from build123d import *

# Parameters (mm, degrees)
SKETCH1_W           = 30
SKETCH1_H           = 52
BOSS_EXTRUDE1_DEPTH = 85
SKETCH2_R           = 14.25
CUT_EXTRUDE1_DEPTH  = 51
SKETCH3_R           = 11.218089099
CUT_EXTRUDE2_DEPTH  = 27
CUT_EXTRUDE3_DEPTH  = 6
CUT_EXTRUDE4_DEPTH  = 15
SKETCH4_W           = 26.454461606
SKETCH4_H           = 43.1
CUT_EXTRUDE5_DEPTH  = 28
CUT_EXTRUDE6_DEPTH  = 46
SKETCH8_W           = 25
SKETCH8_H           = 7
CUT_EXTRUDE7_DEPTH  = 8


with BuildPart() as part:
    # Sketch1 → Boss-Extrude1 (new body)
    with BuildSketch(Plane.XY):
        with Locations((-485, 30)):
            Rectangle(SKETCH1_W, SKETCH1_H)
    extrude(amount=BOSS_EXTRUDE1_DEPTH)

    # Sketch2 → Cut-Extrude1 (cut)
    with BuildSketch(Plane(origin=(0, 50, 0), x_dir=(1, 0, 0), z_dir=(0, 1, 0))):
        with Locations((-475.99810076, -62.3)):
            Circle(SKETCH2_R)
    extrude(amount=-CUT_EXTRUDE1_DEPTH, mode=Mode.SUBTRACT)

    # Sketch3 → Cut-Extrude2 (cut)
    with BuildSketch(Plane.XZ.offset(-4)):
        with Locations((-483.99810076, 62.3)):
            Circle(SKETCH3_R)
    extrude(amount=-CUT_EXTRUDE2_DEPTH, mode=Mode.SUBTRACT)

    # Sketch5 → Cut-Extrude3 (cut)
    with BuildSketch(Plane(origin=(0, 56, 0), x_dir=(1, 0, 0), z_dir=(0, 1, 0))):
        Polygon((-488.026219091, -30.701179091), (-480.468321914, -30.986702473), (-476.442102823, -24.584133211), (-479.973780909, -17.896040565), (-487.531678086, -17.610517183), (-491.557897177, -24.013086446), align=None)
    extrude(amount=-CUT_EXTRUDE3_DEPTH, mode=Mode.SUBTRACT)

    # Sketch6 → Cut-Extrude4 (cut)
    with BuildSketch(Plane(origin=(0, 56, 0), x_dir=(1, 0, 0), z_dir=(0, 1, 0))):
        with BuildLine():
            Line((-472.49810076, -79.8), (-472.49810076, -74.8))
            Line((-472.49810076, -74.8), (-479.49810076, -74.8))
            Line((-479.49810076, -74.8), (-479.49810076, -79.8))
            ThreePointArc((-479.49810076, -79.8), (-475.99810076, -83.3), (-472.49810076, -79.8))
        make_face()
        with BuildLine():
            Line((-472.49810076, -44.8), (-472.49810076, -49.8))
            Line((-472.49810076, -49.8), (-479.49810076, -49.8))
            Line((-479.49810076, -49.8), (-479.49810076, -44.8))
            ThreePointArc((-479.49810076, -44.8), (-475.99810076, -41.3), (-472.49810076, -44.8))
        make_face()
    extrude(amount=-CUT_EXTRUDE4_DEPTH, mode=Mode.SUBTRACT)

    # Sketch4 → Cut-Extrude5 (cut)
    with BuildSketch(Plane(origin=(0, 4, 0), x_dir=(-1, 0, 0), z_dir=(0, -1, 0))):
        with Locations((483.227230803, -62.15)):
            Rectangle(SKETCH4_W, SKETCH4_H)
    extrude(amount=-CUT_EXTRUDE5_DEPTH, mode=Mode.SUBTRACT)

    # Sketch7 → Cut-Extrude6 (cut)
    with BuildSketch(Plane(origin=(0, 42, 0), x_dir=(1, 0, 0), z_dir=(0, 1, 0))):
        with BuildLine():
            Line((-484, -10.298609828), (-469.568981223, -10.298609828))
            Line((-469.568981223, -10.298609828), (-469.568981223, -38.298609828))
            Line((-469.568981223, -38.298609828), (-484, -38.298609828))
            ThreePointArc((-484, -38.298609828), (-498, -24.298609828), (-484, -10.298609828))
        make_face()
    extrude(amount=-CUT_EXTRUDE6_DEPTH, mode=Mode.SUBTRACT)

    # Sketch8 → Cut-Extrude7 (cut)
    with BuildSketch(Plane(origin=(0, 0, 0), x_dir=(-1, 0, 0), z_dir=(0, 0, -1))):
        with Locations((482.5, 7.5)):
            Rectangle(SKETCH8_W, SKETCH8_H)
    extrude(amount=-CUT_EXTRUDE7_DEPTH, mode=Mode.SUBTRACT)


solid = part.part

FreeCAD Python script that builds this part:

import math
import FreeCAD as App
import Part
import Sketcher
Q = App.Units.Quantity

doc = App.newDocument("Part")
body = doc.addObject("PartDesign::Body", "Body")

# Sketch on XY plane
sketch1 = doc.addObject("Sketcher::SketchObject", "Sketch")
body.addObject(sketch1)
sketch1.AttachmentSupport = (doc.XY_Plane, [""])
sketch1.MapMode = "FlatFace"
sketch1.addGeometry([
    Part.LineSegment(App.Vector(-500, 56, 0), App.Vector(-500, 4, 0)),
    Part.LineSegment(App.Vector(-500, 4, 0), App.Vector(-470, 4, 0)),
    Part.LineSegment(App.Vector(-470, 4, 0), App.Vector(-470, 56, 0)),
    Part.LineSegment(App.Vector(-470, 56, 0), App.Vector(-500, 56, 0)),
], False)
sketch1.addConstraint([
    Sketcher.Constraint("Coincident", 0, 2, 1, 1),
    Sketcher.Constraint("Coincident", 1, 2, 2, 1),
    Sketcher.Constraint("Coincident", 2, 2, 3, 1),
    Sketcher.Constraint("Coincident", 3, 2, 0, 1),
    Sketcher.Constraint("Vertical", 0),
    Sketcher.Constraint("Horizontal", 1),
    Sketcher.Constraint("Vertical", 2),
    Sketcher.Constraint("Horizontal", 3),
    Sketcher.Constraint("DistanceX", 1, 1, 1, 2, Q("30 mm")),
    Sketcher.Constraint("DistanceY", 0, 2, 0, 1, Q("52 mm")),
    Sketcher.Constraint("DistanceX", 0, 2, -1, 1, Q("500 mm")),
    Sketcher.Constraint("DistanceY", -1, 1, 0, 2, Q("4 mm")),
])
pad1 = doc.addObject("PartDesign::Pad", "Pad")
body.addObject(pad1)
pad1.Profile = sketch1
pad1.Length = 85

# Sketch on XZ plane
sketch2 = doc.addObject("Sketcher::SketchObject", "Sketch001")
body.addObject(sketch2)
sketch2.AttachmentSupport = (doc.XZ_Plane, [""])
sketch2.MapMode = "FlatFace"
sketch2.AttachmentOffset = App.Placement(App.Vector(0, 0, -50), App.Rotation())
sketch2.addGeometry(Part.Circle(App.Vector(-476, 62, 0), App.Vector(0, 0, 1), 14), False)
sketch2.addConstraint([
    Sketcher.Constraint("Diameter", 0, Q("28.5 mm")),
    Sketcher.Constraint("DistanceY", -1, 1, 0, 3, Q("62.3 mm")),
    Sketcher.Constraint("DistanceX", 0, 3, -1, 1, Q("475.998101 mm")),
])
pocket1 = doc.addObject("PartDesign::Pocket", "Pocket")
body.addObject(pocket1)
pocket1.Profile = sketch2
pocket1.Length = 51
pocket1.Reversed = True

# Sketch on XZ plane
sketch3 = doc.addObject("Sketcher::SketchObject", "Sketch002")
body.addObject(sketch3)
sketch3.AttachmentSupport = (doc.XZ_Plane, [""])
sketch3.MapMode = "FlatFace"
sketch3.AttachmentOffset = App.Placement(App.Vector(0, 0, -4), App.Rotation())
sketch3.addGeometry(Part.Circle(App.Vector(-484, 62, 0), App.Vector(0, 0, 1), 11), False)
sketch3.addConstraint([
    Sketcher.Constraint("DistanceY", -1, 1, 0, 3, Q("62.3 mm")),
    Sketcher.Constraint("Diameter", 0, Q("22.436178 mm")),
    Sketcher.Constraint("DistanceX", 0, 3, -1, 1, Q("483.998101 mm")),
])
pocket2 = doc.addObject("PartDesign::Pocket", "Pocket001")
body.addObject(pocket2)
pocket2.Profile = sketch3
pocket2.Length = 27

# Sketch on XZ plane
sketch4 = doc.addObject("Sketcher::SketchObject", "Sketch003")
body.addObject(sketch4)
sketch4.AttachmentSupport = (doc.XZ_Plane, [""])
sketch4.MapMode = "FlatFace"
sketch4.AttachmentOffset = App.Placement(App.Vector(0, 0, -56), App.Rotation())
sketch4.addGeometry([
    Part.LineSegment(App.Vector(-488, 31, 0), App.Vector(-480, 31, 0)),  # 0
    Part.LineSegment(App.Vector(-480, 31, 0), App.Vector(-476, 25, 0)),  # 1
    Part.LineSegment(App.Vector(-476, 25, 0), App.Vector(-480, 18, 0)),  # 2
    Part.LineSegment(App.Vector(-480, 18, 0), App.Vector(-488, 18, 0)),  # 3
    Part.LineSegment(App.Vector(-488, 18, 0), App.Vector(-492, 24, 0)),  # 4
    Part.LineSegment(App.Vector(-492, 24, 0), App.Vector(-488, 31, 0)),  # 5
], False)
sketch4.addConstraint([
    Sketcher.Constraint("Coincident", 0, 2, 1, 1),
    Sketcher.Constraint("Coincident", 1, 2, 2, 1),
    Sketcher.Constraint("Coincident", 2, 2, 3, 1),
    Sketcher.Constraint("Coincident", 3, 2, 4, 1),
    Sketcher.Constraint("Coincident", 4, 2, 5, 1),
    Sketcher.Constraint("Coincident", 5, 2, 0, 1),
    Sketcher.Constraint("Parallel", 0, 3),
    Sketcher.Constraint("Parallel", 1, 4),
    Sketcher.Constraint("Parallel", 2, 5),
    Sketcher.Constraint("Equal", 0, 1),
    Sketcher.Constraint("Equal", 1, 2),
    Sketcher.Constraint("Equal", 2, 3),
    Sketcher.Constraint("Distance", 0, Q("7.563289 mm")),
    Sketcher.Constraint("DistanceX", 0, 2, -1, 1, Q("480.468322 mm")),
    Sketcher.Constraint("DistanceX", 2, 2, -1, 1, Q("479.973781 mm")),
    Sketcher.Constraint("DistanceY", -1, 1, 2, 2, Q("17.896041 mm")),
    Sketcher.Constraint("DistanceX", 3, 2, -1, 1, Q("487.531678 mm")),
    Sketcher.Constraint("DistanceY", -1, 1, 5, 2, Q("30.701179 mm")),
])
pocket3 = doc.addObject("PartDesign::Pocket", "Pocket002")
body.addObject(pocket3)
pocket3.Profile = sketch4
pocket3.Length = 6
pocket3.Reversed = True

# Sketch on XZ plane
sketch5 = doc.addObject("Sketcher::SketchObject", "Sketch004")
body.addObject(sketch5)
sketch5.AttachmentSupport = (doc.XZ_Plane, [""])
sketch5.MapMode = "FlatFace"
sketch5.AttachmentOffset = App.Placement(App.Vector(0, 0, -56), App.Rotation())
sketch5.addGeometry([
    Part.LineSegment(App.Vector(-472.5, 79.8, 0), App.Vector(-472.5, 74.8, 0)),  # 0
    Part.LineSegment(App.Vector(-472.5, 74.8, 0), App.Vector(-479.5, 74.8, 0)),  # 1
    Part.LineSegment(App.Vector(-479.5, 74.8, 0), App.Vector(-479.5, 79.8, 0)),  # 2
    Part.ArcOfCircle(Part.Circle(App.Vector(-476, 79.8, 0), App.Vector(0, 0, 1), 3.5), math.radians(0), math.radians(180)),  # 3
    Part.LineSegment(App.Vector(-472.5, 49.8, 0), App.Vector(-472.5, 44.8, 0)),  # 4
    Part.ArcOfCircle(Part.Circle(App.Vector(-476, 44.8, 0), App.Vector(0, 0, 1), 3.5), math.radians(180), math.radians(360)),  # 5
    Part.LineSegment(App.Vector(-479.5, 44.8, 0), App.Vector(-479.5, 49.8, 0)),  # 6
    Part.LineSegment(App.Vector(-479.5, 49.8, 0), App.Vector(-472.5, 49.8, 0)),  # 7
], False)
sketch5.addConstraint([
    Sketcher.Constraint("Coincident", 0, 2, 1, 1),
    Sketcher.Constraint("Coincident", 1, 2, 2, 1),
    Sketcher.Constraint("Tangent", 2, 2, 3, 2),
    Sketcher.Constraint("Tangent", 3, 1, 0, 1),
    Sketcher.Constraint("Tangent", 4, 2, 5, 2),
    Sketcher.Constraint("Tangent", 5, 1, 6, 1),
    Sketcher.Constraint("Coincident", 6, 2, 7, 1),
    Sketcher.Constraint("Coincident", 7, 2, 4, 1),
    Sketcher.Constraint("Vertical", 0),
    Sketcher.Constraint("Horizontal", 1),
    Sketcher.Constraint("Vertical", 2),
    Sketcher.Constraint("Vertical", 4),
    Sketcher.Constraint("Vertical", 6),
    Sketcher.Constraint("Horizontal", 7),
    Sketcher.Constraint("Equal", 3, 5),
    Sketcher.Constraint("Vertical", 3, 3, 5, 3),
    Sketcher.Constraint("Equal", 2, 4),
    Sketcher.Constraint("Radius", 3, Q("3.5 mm")),
    Sketcher.Constraint("DistanceY", 0, 2, 0, 1, Q("5 mm")),
    Sketcher.Constraint("DistanceY", 5, 3, 3, 3, Q("35 mm")),
    Sketcher.Constraint("DistanceY", -1, 1, 3, 3, Q("79.8 mm")),
    Sketcher.Constraint("DistanceX", 3, 3, -1, 1, Q("475.998101 mm")),
])
pocket4 = doc.addObject("PartDesign::Pocket", "Pocket003")
body.addObject(pocket4)
pocket4.Profile = sketch5
pocket4.Length = 15
pocket4.Reversed = True

# Sketch on XZ plane
sketch6 = doc.addObject("Sketcher::SketchObject", "Sketch005")
body.addObject(sketch6)
sketch6.AttachmentSupport = (doc.XZ_Plane, [""])
sketch6.MapMode = "FlatFace"
sketch6.AttachmentOffset = App.Placement(App.Vector(0, 0, -4), App.Rotation())
sketch6.addGeometry([
    Part.LineSegment(App.Vector(-470, 41, 0), App.Vector(-470, 84, 0)),
    Part.LineSegment(App.Vector(-470, 84, 0), App.Vector(-496, 84, 0)),
    Part.LineSegment(App.Vector(-496, 84, 0), App.Vector(-496, 41, 0)),
    Part.LineSegment(App.Vector(-496, 41, 0), App.Vector(-470, 41, 0)),
], False)
sketch6.addConstraint([
    Sketcher.Constraint("Coincident", 0, 2, 1, 1),
    Sketcher.Constraint("Coincident", 1, 2, 2, 1),
    Sketcher.Constraint("Coincident", 2, 2, 3, 1),
    Sketcher.Constraint("Coincident", 3, 2, 0, 1),
    Sketcher.Constraint("Vertical", 0),
    Sketcher.Constraint("Horizontal", 1),
    Sketcher.Constraint("Vertical", 2),
    Sketcher.Constraint("Horizontal", 3),
    Sketcher.Constraint("DistanceY", 0, 1, 0, 2, Q("43.1 mm")),
    Sketcher.Constraint("DistanceX", 0, 2, -1, 1, Q("470 mm")),
    Sketcher.Constraint("DistanceY", -1, 1, 0, 2, Q("83.7 mm")),
    Sketcher.Constraint("DistanceX", 1, 2, 1, 1, Q("26.454462 mm")),
])
pocket5 = doc.addObject("PartDesign::Pocket", "Pocket004")
body.addObject(pocket5)
pocket5.Profile = sketch6
pocket5.Length = 28

# Sketch on XZ plane
sketch7 = doc.addObject("Sketcher::SketchObject", "Sketch006")
body.addObject(sketch7)
sketch7.AttachmentSupport = (doc.XZ_Plane, [""])
sketch7.MapMode = "FlatFace"
sketch7.AttachmentOffset = App.Placement(App.Vector(0, 0, -42), App.Rotation())
sketch7.addGeometry([
    Part.LineSegment(App.Vector(-470, 10, 0), App.Vector(-484, 10, 0)),
    Part.ArcOfCircle(Part.Circle(App.Vector(-484, 24, 0), App.Vector(0, 0, 1), 14), math.radians(90), math.radians(270)),
    Part.LineSegment(App.Vector(-484, 38, 0), App.Vector(-470, 38, 0)),
    Part.LineSegment(App.Vector(-470, 38, 0), App.Vector(-470, 10, 0)),
], False)
sketch7.addConstraint([
    Sketcher.Constraint("Tangent", 0, 2, 1, 2),
    Sketcher.Constraint("Tangent", 1, 1, 2, 1),
    Sketcher.Constraint("Coincident", 2, 2, 3, 1),
    Sketcher.Constraint("Coincident", 3, 2, 0, 1),
    Sketcher.Constraint("Horizontal", 0),
    Sketcher.Constraint("Horizontal", 2),
    Sketcher.Constraint("Vertical", 3),
    Sketcher.Constraint("Radius", 1, Q("14 mm")),
    Sketcher.Constraint("DistanceX", 1, 3, -1, 1, Q("484 mm")),
    Sketcher.Constraint("DistanceX", 0, 2, 0, 1, Q("14.431019 mm")),
    Sketcher.Constraint("DistanceY", -1, 1, 1, 3, Q("24.29861 mm")),
])
pocket6 = doc.addObject("PartDesign::Pocket", "Pocket005")
body.addObject(pocket6)
pocket6.Profile = sketch7
pocket6.Length = 46
pocket6.Reversed = True

# Sketch on XY plane
sketch8 = doc.addObject("Sketcher::SketchObject", "Sketch007")
body.addObject(sketch8)
sketch8.AttachmentSupport = (doc.XY_Plane, [""])
sketch8.MapMode = "FlatFace"
sketch8.addGeometry([
    Part.LineSegment(App.Vector(-470, 11, 0), App.Vector(-470, 4, 0)),
    Part.LineSegment(App.Vector(-470, 4, 0), App.Vector(-495, 4, 0)),
    Part.LineSegment(App.Vector(-495, 4, 0), App.Vector(-495, 11, 0)),
    Part.LineSegment(App.Vector(-495, 11, 0), App.Vector(-470, 11, 0)),
], False)
sketch8.addConstraint([
    Sketcher.Constraint("Coincident", 0, 2, 1, 1),
    Sketcher.Constraint("Coincident", 1, 2, 2, 1),
    Sketcher.Constraint("Coincident", 2, 2, 3, 1),
    Sketcher.Constraint("Coincident", 3, 2, 0, 1),
    Sketcher.Constraint("Vertical", 0),
    Sketcher.Constraint("Horizontal", 1),
    Sketcher.Constraint("Vertical", 2),
    Sketcher.Constraint("Horizontal", 3),
    Sketcher.Constraint("DistanceX", 1, 2, 1, 1, Q("25 mm")),
    Sketcher.Constraint("DistanceY", 0, 2, 0, 1, Q("7 mm")),
    Sketcher.Constraint("DistanceX", 0, 2, -1, 1, Q("470 mm")),
    Sketcher.Constraint("DistanceY", -1, 1, 0, 2, Q("4 mm")),
])
pocket7 = doc.addObject("PartDesign::Pocket", "Pocket006")
body.addObject(pocket7)
pocket7.Profile = sketch8
pocket7.Length = 8
pocket7.Reversed = True

doc.recompute()
